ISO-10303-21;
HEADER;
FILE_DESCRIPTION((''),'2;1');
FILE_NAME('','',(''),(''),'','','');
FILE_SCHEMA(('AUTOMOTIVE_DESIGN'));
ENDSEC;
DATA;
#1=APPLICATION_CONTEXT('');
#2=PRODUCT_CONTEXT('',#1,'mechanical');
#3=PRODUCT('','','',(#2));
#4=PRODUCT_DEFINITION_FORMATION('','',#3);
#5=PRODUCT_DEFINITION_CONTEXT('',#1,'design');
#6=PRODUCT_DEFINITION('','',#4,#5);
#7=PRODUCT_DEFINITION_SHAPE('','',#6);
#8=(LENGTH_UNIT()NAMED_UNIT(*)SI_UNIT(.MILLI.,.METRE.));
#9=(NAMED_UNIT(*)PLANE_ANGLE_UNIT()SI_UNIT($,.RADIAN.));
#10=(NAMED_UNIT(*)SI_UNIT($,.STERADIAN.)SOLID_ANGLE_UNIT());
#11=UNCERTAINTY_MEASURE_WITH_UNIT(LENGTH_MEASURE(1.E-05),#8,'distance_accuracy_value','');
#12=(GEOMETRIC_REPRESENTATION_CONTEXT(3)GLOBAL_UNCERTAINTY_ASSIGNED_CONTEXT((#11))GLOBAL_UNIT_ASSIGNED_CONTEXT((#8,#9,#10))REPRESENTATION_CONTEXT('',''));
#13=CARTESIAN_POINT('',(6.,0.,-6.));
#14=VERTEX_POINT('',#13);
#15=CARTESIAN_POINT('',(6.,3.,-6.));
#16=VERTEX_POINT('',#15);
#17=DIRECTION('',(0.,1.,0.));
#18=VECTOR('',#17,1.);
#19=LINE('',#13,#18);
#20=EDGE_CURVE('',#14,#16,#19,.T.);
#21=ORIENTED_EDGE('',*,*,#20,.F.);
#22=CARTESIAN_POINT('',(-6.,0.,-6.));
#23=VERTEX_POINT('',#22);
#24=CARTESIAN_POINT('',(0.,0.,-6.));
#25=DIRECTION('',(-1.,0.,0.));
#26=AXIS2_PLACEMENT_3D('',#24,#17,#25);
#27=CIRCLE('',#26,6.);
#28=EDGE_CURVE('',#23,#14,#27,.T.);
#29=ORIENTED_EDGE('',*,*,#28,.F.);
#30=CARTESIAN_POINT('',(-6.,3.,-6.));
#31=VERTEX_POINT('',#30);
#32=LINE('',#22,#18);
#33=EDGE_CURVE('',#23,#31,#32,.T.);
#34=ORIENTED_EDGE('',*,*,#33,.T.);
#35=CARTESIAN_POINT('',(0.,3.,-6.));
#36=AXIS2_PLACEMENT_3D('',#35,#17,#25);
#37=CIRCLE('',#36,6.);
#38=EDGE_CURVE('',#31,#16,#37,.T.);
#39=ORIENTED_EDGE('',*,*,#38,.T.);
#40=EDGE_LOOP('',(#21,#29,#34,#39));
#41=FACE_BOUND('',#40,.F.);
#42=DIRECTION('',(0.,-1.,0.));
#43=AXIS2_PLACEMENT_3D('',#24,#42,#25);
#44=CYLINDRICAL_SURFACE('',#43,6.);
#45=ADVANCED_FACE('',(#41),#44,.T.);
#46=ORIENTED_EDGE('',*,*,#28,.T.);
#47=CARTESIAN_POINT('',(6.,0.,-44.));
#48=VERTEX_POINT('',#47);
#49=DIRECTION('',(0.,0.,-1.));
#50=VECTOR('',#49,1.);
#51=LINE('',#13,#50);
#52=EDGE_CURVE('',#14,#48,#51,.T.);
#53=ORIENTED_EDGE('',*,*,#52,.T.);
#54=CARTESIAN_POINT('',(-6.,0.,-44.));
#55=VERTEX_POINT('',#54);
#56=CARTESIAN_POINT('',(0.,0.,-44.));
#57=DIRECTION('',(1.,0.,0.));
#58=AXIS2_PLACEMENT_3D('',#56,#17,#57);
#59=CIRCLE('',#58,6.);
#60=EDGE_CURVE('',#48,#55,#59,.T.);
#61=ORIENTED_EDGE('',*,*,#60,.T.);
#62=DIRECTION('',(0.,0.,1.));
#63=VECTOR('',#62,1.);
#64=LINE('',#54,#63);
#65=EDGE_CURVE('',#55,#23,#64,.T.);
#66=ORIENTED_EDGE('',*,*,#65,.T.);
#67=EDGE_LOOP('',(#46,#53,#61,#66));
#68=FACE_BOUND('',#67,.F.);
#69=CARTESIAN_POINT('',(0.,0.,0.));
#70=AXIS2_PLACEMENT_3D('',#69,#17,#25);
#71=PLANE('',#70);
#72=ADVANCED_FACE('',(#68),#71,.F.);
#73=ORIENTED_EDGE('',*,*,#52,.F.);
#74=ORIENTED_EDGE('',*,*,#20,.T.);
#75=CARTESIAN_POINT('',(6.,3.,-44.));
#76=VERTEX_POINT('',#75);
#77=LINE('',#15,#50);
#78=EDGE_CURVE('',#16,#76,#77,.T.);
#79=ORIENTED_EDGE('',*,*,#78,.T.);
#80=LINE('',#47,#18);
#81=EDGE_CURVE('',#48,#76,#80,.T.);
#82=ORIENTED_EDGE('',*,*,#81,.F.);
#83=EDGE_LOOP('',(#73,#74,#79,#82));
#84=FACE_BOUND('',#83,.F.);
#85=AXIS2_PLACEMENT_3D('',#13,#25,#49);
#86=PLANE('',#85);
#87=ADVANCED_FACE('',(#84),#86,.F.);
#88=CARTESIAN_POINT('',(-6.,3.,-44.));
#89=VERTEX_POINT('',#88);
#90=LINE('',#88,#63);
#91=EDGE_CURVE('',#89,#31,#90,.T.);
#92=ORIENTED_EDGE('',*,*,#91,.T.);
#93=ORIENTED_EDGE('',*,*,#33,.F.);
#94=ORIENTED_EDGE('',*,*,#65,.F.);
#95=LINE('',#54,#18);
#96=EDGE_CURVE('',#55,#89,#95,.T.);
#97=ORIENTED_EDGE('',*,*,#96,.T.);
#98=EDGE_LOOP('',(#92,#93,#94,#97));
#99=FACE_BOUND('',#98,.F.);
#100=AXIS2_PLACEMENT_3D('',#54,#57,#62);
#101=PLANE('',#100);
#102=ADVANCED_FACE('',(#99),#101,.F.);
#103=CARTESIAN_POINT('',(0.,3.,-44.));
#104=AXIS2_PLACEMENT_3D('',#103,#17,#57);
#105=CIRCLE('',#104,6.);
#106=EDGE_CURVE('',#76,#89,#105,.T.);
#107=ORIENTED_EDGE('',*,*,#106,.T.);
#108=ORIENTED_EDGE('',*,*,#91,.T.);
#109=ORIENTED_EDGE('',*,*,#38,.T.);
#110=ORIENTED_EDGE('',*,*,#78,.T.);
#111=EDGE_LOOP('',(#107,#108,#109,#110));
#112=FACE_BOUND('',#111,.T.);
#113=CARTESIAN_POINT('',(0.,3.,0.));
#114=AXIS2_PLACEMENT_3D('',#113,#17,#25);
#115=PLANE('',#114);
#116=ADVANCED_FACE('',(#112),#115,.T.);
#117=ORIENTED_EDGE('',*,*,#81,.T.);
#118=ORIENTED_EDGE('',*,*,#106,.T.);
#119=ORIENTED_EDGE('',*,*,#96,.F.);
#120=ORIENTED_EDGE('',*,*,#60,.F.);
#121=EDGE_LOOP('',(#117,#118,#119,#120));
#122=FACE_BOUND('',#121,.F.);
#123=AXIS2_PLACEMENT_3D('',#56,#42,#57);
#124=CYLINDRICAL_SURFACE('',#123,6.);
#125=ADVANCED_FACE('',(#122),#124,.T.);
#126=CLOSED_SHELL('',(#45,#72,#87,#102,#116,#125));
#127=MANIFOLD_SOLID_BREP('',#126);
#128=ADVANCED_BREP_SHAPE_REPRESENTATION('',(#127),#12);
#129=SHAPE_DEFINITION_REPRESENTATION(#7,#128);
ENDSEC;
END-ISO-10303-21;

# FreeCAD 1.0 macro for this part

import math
import FreeCAD as App
import Part
import Sketcher

V = App.Vector
Q = App.Units.Quantity

doc = App.newDocument("Part")
body = doc.addObject("PartDesign::Body", "Body")

# Sketch on XZ plane
sketch1 = doc.addObject("Sketcher::SketchObject", "Sketch")
body.addObject(sketch1)
sketch1.AttachmentSupport = (doc.XZ_Plane, [""])
sketch1.MapMode = "FlatFace"
sketch1.addGeometry([
    Part.ArcOfCircle(Part.Circle(V(0, -6, 0), V(0, 0, 1), 6), math.radians(0), math.radians(180)),
    Part.LineSegment(V(6, -6, 0), V(6, -44, 0)),
    Part.ArcOfCircle(Part.Circle(V(0, -44, 0), V(0, 0, 1), 6), math.radians(180), math.radians(360)),
    Part.LineSegment(V(-6, -44, 0), V(-6, -6, 0)),
], False)
sketch1.addConstraint([
    Sketcher.Constraint("Tangent", 0, 1, 1, 1),
    Sketcher.Constraint("Tangent", 1, 2, 2, 2),
    Sketcher.Constraint("Tangent", 2, 1, 3, 1),
    Sketcher.Constraint("Tangent", 3, 2, 0, 2),
    Sketcher.Constraint("Vertical", 1),
    Sketcher.Constraint("Vertical", 3),
    Sketcher.Constraint("PointOnObject", 0, 3, -2),
    Sketcher.Constraint("Radius", 0, Q("6 mm")),
    Sketcher.Constraint("DistanceY", 0, 3, -1, 1, Q("6 mm")),
    Sketcher.Constraint("DistanceY", 1, 2, 1, 1, Q("38 mm")),
])
pad1 = doc.addObject("PartDesign::Pad", "Pad")
body.addObject(pad1)
pad1.Profile = sketch1
pad1.Length = 3
pad1.Reversed = True

doc.recompute()
